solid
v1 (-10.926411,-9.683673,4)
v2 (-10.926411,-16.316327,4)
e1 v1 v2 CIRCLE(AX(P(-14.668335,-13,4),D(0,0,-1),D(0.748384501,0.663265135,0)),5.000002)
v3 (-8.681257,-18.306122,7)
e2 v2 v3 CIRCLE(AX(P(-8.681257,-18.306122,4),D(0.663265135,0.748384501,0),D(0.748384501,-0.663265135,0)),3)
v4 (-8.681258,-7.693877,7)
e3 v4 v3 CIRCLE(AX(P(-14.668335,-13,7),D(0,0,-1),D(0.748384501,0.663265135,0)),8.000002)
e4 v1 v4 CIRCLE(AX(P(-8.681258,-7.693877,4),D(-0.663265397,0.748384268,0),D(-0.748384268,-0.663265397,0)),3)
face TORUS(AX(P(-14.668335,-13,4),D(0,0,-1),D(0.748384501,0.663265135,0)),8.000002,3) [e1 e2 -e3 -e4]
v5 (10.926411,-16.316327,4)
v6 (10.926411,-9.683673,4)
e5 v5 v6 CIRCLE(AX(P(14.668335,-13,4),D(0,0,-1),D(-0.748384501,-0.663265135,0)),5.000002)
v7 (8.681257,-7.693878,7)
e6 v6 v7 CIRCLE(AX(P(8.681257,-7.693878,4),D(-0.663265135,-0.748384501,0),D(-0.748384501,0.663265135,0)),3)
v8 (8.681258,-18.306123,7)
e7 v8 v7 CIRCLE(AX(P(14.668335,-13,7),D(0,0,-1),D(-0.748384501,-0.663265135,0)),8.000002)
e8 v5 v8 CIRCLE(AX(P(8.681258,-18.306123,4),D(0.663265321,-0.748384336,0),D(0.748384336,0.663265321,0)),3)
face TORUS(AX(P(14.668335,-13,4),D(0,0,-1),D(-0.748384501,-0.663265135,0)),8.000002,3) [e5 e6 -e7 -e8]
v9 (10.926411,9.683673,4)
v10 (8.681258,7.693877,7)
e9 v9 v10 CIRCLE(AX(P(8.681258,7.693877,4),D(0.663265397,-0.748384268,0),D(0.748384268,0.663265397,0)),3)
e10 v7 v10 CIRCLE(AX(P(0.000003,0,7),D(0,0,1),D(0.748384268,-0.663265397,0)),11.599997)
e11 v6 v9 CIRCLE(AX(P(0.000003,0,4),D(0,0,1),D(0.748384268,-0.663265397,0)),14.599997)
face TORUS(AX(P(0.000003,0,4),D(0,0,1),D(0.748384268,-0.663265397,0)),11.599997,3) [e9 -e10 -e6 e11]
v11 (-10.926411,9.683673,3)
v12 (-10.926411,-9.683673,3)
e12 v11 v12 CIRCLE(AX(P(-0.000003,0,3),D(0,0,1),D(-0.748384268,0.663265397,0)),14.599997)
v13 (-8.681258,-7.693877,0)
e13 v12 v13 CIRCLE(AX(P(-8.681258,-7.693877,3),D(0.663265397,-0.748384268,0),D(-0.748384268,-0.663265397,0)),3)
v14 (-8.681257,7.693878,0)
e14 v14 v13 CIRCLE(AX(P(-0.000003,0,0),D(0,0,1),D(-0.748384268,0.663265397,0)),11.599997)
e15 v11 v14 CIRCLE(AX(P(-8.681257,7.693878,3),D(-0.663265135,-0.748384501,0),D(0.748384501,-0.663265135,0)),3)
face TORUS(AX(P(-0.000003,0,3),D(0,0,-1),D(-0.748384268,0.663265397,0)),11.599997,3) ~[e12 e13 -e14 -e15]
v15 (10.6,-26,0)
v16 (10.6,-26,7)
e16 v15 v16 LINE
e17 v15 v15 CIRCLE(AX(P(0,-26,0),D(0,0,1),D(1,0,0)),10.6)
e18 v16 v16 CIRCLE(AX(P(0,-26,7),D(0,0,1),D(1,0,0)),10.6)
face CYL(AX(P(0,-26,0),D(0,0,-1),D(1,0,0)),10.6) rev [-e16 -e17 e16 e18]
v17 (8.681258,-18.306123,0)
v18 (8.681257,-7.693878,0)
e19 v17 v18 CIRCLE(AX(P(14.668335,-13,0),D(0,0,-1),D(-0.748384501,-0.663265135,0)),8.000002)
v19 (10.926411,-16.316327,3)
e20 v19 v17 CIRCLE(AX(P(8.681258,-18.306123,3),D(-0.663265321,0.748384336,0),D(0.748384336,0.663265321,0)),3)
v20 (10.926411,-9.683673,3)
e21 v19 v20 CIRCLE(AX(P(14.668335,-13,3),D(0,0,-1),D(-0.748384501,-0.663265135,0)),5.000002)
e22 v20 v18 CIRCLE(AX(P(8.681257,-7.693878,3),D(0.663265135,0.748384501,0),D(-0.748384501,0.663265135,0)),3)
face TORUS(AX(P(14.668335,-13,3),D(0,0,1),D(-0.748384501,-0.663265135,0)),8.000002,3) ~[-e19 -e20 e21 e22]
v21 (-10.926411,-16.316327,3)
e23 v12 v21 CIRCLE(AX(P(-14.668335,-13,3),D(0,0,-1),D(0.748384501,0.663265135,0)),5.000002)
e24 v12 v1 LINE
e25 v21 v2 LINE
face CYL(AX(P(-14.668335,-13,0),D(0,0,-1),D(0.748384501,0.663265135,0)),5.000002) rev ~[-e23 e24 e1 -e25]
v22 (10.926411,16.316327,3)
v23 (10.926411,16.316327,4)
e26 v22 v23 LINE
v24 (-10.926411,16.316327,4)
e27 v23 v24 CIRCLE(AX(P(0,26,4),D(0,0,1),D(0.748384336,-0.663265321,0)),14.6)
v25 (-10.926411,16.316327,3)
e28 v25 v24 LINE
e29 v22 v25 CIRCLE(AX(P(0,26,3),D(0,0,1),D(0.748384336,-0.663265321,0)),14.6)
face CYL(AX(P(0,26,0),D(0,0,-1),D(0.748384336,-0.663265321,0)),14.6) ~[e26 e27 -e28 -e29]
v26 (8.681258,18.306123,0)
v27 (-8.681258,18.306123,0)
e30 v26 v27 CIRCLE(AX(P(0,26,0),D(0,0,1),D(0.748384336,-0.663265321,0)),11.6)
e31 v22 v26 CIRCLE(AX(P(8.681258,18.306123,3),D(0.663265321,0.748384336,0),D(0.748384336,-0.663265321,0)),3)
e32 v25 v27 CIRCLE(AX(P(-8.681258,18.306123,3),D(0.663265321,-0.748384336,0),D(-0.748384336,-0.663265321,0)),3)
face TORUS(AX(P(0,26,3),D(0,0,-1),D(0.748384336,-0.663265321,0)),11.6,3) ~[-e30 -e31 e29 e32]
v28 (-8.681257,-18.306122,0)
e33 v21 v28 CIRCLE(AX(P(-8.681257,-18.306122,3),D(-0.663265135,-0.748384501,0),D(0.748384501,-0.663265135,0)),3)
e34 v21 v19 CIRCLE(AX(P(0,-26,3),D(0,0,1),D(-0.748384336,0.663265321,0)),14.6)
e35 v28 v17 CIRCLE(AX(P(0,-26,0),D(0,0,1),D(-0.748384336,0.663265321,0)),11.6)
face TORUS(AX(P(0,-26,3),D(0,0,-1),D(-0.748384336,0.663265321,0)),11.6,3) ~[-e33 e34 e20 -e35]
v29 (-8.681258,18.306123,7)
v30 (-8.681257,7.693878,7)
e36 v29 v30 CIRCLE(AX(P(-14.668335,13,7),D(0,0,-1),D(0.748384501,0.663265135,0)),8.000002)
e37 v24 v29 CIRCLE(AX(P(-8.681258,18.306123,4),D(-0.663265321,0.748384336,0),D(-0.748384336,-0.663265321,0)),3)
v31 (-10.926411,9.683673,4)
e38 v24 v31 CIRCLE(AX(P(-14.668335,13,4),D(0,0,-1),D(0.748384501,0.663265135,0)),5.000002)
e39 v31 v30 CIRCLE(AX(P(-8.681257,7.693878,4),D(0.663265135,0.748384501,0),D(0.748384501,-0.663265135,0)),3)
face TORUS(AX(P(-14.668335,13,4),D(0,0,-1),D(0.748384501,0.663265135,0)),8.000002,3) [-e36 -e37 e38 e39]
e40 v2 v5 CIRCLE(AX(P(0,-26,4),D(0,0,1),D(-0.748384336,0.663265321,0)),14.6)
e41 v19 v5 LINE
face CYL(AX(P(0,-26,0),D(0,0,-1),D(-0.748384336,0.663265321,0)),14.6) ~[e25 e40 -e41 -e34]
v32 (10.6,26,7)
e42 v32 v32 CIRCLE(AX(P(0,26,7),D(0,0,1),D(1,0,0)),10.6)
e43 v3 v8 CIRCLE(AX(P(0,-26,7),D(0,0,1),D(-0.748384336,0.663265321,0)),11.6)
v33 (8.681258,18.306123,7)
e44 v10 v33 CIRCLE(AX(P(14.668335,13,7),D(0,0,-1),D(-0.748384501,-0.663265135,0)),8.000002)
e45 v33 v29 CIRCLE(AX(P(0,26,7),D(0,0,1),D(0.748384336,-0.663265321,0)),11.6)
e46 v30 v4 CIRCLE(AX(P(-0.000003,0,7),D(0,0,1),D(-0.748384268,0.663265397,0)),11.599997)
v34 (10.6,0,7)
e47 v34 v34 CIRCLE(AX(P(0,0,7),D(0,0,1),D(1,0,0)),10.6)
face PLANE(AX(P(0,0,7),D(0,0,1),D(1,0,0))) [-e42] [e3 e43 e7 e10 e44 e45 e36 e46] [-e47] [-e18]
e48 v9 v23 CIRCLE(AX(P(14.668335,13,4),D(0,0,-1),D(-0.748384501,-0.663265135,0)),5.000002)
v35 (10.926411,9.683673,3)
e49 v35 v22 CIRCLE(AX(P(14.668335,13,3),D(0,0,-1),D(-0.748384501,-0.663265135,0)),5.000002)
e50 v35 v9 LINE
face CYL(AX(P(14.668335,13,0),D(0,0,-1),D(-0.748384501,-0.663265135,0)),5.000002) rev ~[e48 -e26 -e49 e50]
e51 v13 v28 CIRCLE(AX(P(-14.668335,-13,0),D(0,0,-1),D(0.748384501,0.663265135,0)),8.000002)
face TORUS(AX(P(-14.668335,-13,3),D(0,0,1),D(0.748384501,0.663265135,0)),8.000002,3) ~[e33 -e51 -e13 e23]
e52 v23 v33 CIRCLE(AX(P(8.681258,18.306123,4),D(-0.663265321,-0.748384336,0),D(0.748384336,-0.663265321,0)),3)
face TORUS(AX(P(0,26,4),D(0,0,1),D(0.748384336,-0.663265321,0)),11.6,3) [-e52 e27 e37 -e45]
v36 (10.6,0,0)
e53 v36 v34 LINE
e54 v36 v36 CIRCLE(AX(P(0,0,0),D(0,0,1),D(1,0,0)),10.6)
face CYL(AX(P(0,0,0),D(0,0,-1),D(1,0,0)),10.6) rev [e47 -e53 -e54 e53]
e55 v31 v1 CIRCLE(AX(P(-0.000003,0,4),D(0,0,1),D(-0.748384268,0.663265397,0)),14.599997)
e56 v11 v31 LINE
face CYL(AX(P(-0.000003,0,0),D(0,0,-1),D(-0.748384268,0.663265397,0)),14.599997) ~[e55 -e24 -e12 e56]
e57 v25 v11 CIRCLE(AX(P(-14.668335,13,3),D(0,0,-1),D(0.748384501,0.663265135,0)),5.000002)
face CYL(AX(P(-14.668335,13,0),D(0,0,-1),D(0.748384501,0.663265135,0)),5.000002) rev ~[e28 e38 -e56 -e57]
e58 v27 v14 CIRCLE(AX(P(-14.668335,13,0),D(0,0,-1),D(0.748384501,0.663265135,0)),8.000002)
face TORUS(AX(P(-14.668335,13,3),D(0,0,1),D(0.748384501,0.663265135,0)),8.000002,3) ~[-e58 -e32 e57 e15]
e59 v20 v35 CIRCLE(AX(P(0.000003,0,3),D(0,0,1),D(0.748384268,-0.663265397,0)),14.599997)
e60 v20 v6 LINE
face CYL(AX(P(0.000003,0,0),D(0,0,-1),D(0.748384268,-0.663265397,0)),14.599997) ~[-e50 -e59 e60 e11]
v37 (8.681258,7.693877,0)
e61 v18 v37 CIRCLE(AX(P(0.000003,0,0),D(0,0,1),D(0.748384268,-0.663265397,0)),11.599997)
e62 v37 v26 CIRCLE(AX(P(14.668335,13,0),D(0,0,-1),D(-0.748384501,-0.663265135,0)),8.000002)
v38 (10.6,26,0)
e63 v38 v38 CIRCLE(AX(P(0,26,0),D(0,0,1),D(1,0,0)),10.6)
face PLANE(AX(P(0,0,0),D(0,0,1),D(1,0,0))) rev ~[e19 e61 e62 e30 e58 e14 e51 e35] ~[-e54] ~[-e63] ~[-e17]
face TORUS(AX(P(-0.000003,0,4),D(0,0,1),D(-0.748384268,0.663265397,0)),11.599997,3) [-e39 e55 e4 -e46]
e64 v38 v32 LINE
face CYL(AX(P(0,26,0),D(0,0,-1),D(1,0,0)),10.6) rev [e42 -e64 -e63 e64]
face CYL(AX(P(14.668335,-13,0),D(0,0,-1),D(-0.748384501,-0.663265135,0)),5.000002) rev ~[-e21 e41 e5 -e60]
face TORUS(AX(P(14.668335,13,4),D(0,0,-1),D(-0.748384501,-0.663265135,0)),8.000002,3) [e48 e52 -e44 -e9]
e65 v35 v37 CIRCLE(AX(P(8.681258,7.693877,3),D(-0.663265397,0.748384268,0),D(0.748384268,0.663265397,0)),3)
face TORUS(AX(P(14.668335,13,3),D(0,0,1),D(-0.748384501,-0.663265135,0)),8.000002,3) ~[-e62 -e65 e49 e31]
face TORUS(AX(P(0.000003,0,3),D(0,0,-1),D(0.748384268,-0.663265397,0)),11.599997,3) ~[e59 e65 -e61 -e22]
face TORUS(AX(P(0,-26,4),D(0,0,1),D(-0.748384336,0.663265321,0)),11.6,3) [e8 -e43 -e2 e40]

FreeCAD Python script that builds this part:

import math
import FreeCAD as App
import Part
import Sketcher

V = App.Vector


def edges_at(feature, points):
    """Names of the edges that pass closest to the given points."""
    edges = feature.Shape.Edges
    near = lambda p: min(range(len(edges)), key=lambda i: edges[i].distToShape(Part.Vertex(*p))[0])
    return sorted({f"Edge{near(p) + 1}" for p in points})

doc = App.newDocument("Part")
body = doc.addObject("PartDesign::Body", "Body")

sketch1 = body.newObject("Sketcher::SketchObject", "Sketch")
sketch1.AttachmentSupport = (doc.getObject("XY_Plane"), [""])
sketch1.MapMode = "FlatFace"
sketch1.addGeometry([
    Part.ArcOfCircle(Part.Circle(V(0, 26, 0), V(0, 0, 1), 15), math.radians(-42), math.radians(222)),
    Part.ArcOfCircle(Part.Circle(V(-15, 13, 0), V(0, 0, 1), 5), math.radians(-42), math.radians(42)),
    Part.ArcOfCircle(Part.Circle(V(0, 0, 0), V(0, 0, 1), 15), math.radians(138), math.radians(222)),
    Part.ArcOfCircle(Part.Circle(V(-15, -13, 0), V(0, 0, 1), 5), math.radians(-42), math.radians(42)),
    Part.ArcOfCircle(Part.Circle(V(0, -26, 0), V(0, 0, 1), 15), math.radians(138), math.radians(402)),
    Part.ArcOfCircle(Part.Circle(V(15, -13, 0), V(0, 0, 1), 5), math.radians(138), math.radians(222)),
    Part.ArcOfCircle(Part.Circle(V(0, 0, 0), V(0, 0, 1), 15), math.radians(-42), math.radians(42)),
    Part.ArcOfCircle(Part.Circle(V(15, 13, 0), V(0, 0, 1), 5), math.radians(138), math.radians(222)),
    Part.Circle(V(0, -26, 0), V(0, 0, 1), 11),
    Part.Circle(V(0, 0, 0), V(0, 0, 1), 11),
    Part.Circle(V(0, 26, 0), V(0, 0, 1), 11),
], False)
sketch1.addConstraint([
    Sketcher.Constraint("Tangent", 0, 2, 1, 2),
    Sketcher.Constraint("Tangent", 1, 1, 2, 1),
    Sketcher.Constraint("Tangent", 2, 2, 3, 2),
    Sketcher.Constraint("Tangent", 3, 1, 4, 1),
    Sketcher.Constraint("Tangent", 4, 2, 5, 2),
    Sketcher.Constraint("Tangent", 5, 1, 6, 1),
    Sketcher.Constraint("Tangent", 6, 2, 7, 2),
    Sketcher.Constraint("Tangent", 7, 1, 0, 1),
    Sketcher.Constraint("Coincident", 2, 3, -1, 1),
    Sketcher.Constraint("Coincident", 6, 3, -1, 1),
    Sketcher.Constraint("Coincident", 9, 3, -1, 1),
    Sketcher.Constraint("Coincident", 8, 3, 4, 3),
    Sketcher.Constraint("Coincident", 10, 3, 0, 3),
    Sketcher.Constraint("Equal", 1, 3),
    Sketcher.Constraint("Equal", 0, 4),
    Sketcher.Constraint("Equal", 3, 5),
    Sketcher.Constraint("Equal", 2, 6),
    Sketcher.Constraint("Equal", 5, 7),
    Sketcher.Constraint("Equal", 8, 9),
    Sketcher.Constraint("Equal", 9, 10),
    Sketcher.Constraint("Symmetric", 0, 3, 4, 3, -1, 1),
    Sketcher.Constraint("PointOnObject", 0, 3, -2),
    Sketcher.Constraint("Vertical", 0, 2, 1, 1),
    Sketcher.Constraint("Radius", 1, 5.000002),
    Sketcher.Constraint("Diameter", 8, 21.2),
    Sketcher.Constraint("Radius", 0, 14.6),
    Sketcher.Constraint("DistanceY", -1, 1, 0, 3, 26.0),
])
pad1 = body.newObject("PartDesign::Pad", "Pad")
pad1.Profile = sketch1
pad1.Length = 7
doc.recompute()

fillet = body.newObject("PartDesign::Fillet", "Fillet")
fillet.Base = (pad1, edges_at(pad1, [(0, 40.6, 7), (0, 40.6, 0)]))
fillet.Radius = 3

doc.recompute()
